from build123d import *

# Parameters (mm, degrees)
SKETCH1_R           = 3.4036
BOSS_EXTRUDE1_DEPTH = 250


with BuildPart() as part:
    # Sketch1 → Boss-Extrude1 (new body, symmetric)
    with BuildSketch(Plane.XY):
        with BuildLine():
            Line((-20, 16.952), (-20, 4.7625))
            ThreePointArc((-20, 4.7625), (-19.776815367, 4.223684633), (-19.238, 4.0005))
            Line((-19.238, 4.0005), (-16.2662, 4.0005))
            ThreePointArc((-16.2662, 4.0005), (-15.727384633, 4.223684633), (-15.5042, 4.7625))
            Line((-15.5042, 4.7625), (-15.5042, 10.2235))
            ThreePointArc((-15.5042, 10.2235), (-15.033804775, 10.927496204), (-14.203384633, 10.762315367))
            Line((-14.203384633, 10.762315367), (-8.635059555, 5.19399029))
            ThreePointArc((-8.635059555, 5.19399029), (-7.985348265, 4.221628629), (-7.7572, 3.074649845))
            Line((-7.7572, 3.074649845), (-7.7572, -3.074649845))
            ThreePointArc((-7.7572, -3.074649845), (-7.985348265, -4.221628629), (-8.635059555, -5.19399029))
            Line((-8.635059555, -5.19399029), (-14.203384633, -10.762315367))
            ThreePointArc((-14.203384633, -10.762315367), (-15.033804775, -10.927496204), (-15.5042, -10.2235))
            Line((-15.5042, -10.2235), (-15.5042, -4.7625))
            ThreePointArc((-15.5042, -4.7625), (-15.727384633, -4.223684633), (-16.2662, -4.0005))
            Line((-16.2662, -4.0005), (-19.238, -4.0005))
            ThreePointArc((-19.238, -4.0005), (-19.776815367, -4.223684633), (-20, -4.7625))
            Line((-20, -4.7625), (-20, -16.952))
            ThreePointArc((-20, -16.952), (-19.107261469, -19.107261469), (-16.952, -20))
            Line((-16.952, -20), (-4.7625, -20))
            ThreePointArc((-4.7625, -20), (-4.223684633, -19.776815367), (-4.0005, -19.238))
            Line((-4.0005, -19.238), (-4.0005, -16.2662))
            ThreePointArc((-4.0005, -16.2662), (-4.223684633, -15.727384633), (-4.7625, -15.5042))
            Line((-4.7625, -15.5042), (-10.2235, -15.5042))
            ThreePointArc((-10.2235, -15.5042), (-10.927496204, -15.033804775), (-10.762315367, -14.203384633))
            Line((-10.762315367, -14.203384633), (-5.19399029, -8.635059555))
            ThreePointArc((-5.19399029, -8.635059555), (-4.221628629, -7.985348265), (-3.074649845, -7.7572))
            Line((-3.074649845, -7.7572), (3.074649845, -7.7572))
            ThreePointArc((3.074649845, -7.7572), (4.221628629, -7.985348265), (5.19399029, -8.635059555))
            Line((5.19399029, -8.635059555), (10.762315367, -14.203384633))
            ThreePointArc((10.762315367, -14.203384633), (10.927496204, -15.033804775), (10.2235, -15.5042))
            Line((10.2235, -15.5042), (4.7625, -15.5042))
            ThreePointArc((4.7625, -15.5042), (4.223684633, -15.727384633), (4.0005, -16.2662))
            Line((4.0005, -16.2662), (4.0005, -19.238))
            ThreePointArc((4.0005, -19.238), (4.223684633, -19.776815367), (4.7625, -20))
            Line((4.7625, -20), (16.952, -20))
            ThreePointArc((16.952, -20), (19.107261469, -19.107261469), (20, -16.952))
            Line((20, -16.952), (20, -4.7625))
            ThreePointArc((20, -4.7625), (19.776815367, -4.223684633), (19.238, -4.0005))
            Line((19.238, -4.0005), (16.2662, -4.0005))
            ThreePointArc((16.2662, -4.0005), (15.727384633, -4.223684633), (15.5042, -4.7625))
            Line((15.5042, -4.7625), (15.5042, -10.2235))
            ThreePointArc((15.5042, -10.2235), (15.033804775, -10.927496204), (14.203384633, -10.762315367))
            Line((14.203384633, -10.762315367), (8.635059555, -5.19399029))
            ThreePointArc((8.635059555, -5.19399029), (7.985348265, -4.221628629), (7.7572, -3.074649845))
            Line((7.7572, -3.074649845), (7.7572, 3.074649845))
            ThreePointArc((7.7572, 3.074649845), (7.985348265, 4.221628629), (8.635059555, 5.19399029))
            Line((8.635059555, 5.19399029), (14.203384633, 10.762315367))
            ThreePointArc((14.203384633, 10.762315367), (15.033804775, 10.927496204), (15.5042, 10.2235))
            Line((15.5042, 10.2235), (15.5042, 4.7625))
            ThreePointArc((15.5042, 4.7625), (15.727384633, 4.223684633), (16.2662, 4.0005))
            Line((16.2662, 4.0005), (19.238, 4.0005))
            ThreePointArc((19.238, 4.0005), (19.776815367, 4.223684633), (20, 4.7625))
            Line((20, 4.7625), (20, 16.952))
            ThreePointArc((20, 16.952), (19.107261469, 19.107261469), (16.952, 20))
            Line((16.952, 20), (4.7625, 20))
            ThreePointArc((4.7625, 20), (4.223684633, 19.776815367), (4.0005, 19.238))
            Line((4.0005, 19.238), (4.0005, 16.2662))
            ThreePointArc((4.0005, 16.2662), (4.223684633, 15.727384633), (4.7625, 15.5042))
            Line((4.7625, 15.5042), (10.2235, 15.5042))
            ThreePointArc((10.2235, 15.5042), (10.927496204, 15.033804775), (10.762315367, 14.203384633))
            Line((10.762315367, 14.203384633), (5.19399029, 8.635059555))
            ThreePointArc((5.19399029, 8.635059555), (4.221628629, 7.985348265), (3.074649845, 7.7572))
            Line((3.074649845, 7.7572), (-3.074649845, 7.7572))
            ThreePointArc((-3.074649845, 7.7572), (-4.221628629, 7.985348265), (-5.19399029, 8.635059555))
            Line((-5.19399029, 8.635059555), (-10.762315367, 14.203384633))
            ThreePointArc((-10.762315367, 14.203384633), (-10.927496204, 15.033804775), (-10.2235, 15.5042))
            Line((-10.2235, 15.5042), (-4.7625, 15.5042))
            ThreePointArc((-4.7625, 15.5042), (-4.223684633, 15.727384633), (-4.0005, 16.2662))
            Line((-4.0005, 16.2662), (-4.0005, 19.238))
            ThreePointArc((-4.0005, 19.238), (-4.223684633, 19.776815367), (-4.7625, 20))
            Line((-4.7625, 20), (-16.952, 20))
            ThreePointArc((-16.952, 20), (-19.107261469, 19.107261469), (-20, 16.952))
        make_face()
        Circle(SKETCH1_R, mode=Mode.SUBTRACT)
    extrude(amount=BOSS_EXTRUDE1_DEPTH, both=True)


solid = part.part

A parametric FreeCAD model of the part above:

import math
import FreeCAD as App
import Part
import Sketcher

V = App.Vector
Q = App.Units.Quantity

doc = App.newDocument("Part")
body = doc.addObject("PartDesign::Body", "Body")

# Sketch on XY plane
sketch1 = body.newObject("Sketcher::SketchObject", "Sketch")
sketch1.AttachmentSupport = (doc.getObject("XY_Plane"), [""])
sketch1.MapMode = "FlatFace"
sketch1.addGeometry([
    Part.LineSegment(V(-20, 17, 0), V(-20, 4.8, 0)),  # 0
    Part.ArcOfCircle(Part.Circle(V(-19.2, 4.8, 0), V(0, 0, 1), 0.8), math.radians(-180), math.radians(-90)),  # 1
    Part.LineSegment(V(-19.2, 4, 0), V(-16.3, 4, 0)),  # 2
    Part.ArcOfCircle(Part.Circle(V(-16.3, 4.8, 0), V(0, 0, 1), 0.8), math.radians(-90), math.radians(0)),  # 3
    Part.LineSegment(V(-15.5, 4.8, 0), V(-15.5, 10.2, 0)),  # 4
    Part.ArcOfCircle(Part.Circle(V(-14.7, 10.2, 0), V(0, 0, 1), 0.8), math.radians(45), math.radians(180)),  # 5
    Part.LineSegment(V(-14.2, 10.8, 0), V(-8.6, 5.2, 0)),  # 6
    Part.ArcOfCircle(Part.Circle(V(-10.8, 3.1, 0), V(0, 0, 1), 3), math.radians(0), math.radians(45)),  # 7
    Part.LineSegment(V(-7.8, 3.1, 0), V(-7.8, -3.1, 0)),  # 8
    Part.ArcOfCircle(Part.Circle(V(-10.8, -3.1, 0), V(0, 0, 1), 3), math.radians(-45), math.radians(0)),  # 9
    Part.LineSegment(V(-8.6, -5.2, 0), V(-14.2, -10.8, 0)),  # 10
    Part.ArcOfCircle(Part.Circle(V(-14.7, -10.2, 0), V(0, 0, 1), 0.8), math.radians(180), math.radians(315)),  # 11
    Part.LineSegment(V(-15.5, -10.2, 0), V(-15.5, -4.8, 0)),  # 12
    Part.ArcOfCircle(Part.Circle(V(-16.3, -4.8, 0), V(0, 0, 1), 0.8), math.radians(0), math.radians(90)),  # 13
    Part.LineSegment(V(-16.3, -4, 0), V(-19.2, -4, 0)),  # 14
    Part.ArcOfCircle(Part.Circle(V(-19.2, -4.8, 0), V(0, 0, 1), 0.8), math.radians(90), math.radians(180)),  # 15
    Part.LineSegment(V(-20, -4.8, 0), V(-20, -17, 0)),  # 16
    Part.ArcOfCircle(Part.Circle(V(-17, -17, 0), V(0, 0, 1), 3), math.radians(180), math.radians(270)),  # 17
    Part.LineSegment(V(-17, -20, 0), V(-4.8, -20, 0)),  # 18
    Part.ArcOfCircle(Part.Circle(V(-4.8, -19.2, 0), V(0, 0, 1), 0.8), math.radians(-90), math.radians(0)),  # 19
    Part.LineSegment(V(-4, -19.2, 0), V(-4, -16.3, 0)),  # 20
    Part.ArcOfCircle(Part.Circle(V(-4.8, -16.3, 0), V(0, 0, 1), 0.8), math.radians(0), math.radians(90)),  # 21
    Part.LineSegment(V(-4.8, -15.5, 0), V(-10.2, -15.5, 0)),  # 22
    Part.ArcOfCircle(Part.Circle(V(-10.2, -14.7, 0), V(0, 0, 1), 0.8), math.radians(135), math.radians(270)),  # 23
    Part.LineSegment(V(-10.8, -14.2, 0), V(-5.2, -8.6, 0)),  # 24
    Part.ArcOfCircle(Part.Circle(V(-3.1, -10.8, 0), V(0, 0, 1), 3), math.radians(90), math.radians(135)),  # 25
    Part.LineSegment(V(-3.1, -7.8, 0), V(3.1, -7.8, 0)),  # 26
    Part.ArcOfCircle(Part.Circle(V(3.1, -10.8, 0), V(0, 0, 1), 3), math.radians(45), math.radians(90)),  # 27
    Part.LineSegment(V(5.2, -8.6, 0), V(10.8, -14.2, 0)),  # 28
    Part.ArcOfCircle(Part.Circle(V(10.2, -14.7, 0), V(0, 0, 1), 0.8), math.radians(-90), math.radians(45)),  # 29
    Part.LineSegment(V(10.2, -15.5, 0), V(4.8, -15.5, 0)),  # 30
    Part.ArcOfCircle(Part.Circle(V(4.8, -16.3, 0), V(0, 0, 1), 0.8), math.radians(90), math.radians(180)),  # 31
    Part.LineSegment(V(4, -16.3, 0), V(4, -19.2, 0)),  # 32
    Part.ArcOfCircle(Part.Circle(V(4.8, -19.2, 0), V(0, 0, 1), 0.8), math.radians(-180), math.radians(-90)),  # 33
    Part.LineSegment(V(4.8, -20, 0), V(17, -20, 0)),  # 34
    Part.ArcOfCircle(Part.Circle(V(17, -17, 0), V(0, 0, 1), 3), math.radians(-90), math.radians(0)),  # 35
    Part.LineSegment(V(20, -17, 0), V(20, -4.8, 0)),  # 36
    Part.ArcOfCircle(Part.Circle(V(19.2, -4.8, 0), V(0, 0, 1), 0.8), math.radians(0), math.radians(90)),  # 37
    Part.LineSegment(V(19.2, -4, 0), V(16.3, -4, 0)),  # 38
    Part.ArcOfCircle(Part.Circle(V(16.3, -4.8, 0), V(0, 0, 1), 0.8), math.radians(90), math.radians(180)),  # 39
    Part.LineSegment(V(15.5, -4.8, 0), V(15.5, -10.2, 0)),  # 40
    Part.ArcOfCircle(Part.Circle(V(14.7, -10.2, 0), V(0, 0, 1), 0.8), math.radians(-135), math.radians(0)),  # 41
    Part.LineSegment(V(14.2, -10.8, 0), V(8.6, -5.2, 0)),  # 42
    Part.ArcOfCircle(Part.Circle(V(10.8, -3.1, 0), V(0, 0, 1), 3), math.radians(180), math.radians(225)),  # 43
    Part.LineSegment(V(7.8, -3.1, 0), V(7.8, 3.1, 0)),  # 44
    Part.ArcOfCircle(Part.Circle(V(10.8, 3.1, 0), V(0, 0, 1), 3), math.radians(135), math.radians(180)),  # 45
    Part.LineSegment(V(8.6, 5.2, 0), V(14.2, 10.8, 0)),  # 46
    Part.ArcOfCircle(Part.Circle(V(14.7, 10.2, 0), V(0, 0, 1), 0.8), math.radians(0), math.radians(135)),  # 47
    Part.LineSegment(V(15.5, 10.2, 0), V(15.5, 4.8, 0)),  # 48
    Part.ArcOfCircle(Part.Circle(V(16.3, 4.8, 0), V(0, 0, 1), 0.8), math.radians(-180), math.radians(-90)),  # 49
    Part.LineSegment(V(16.3, 4, 0), V(19.2, 4, 0)),  # 50
    Part.ArcOfCircle(Part.Circle(V(19.2, 4.8, 0), V(0, 0, 1), 0.8), math.radians(-90), math.radians(0)),  # 51
    Part.LineSegment(V(20, 4.8, 0), V(20, 17, 0)),  # 52
    Part.ArcOfCircle(Part.Circle(V(17, 17, 0), V(0, 0, 1), 3), math.radians(0), math.radians(90)),  # 53
    Part.LineSegment(V(17, 20, 0), V(4.8, 20, 0)),  # 54
    Part.ArcOfCircle(Part.Circle(V(4.8, 19.2, 0), V(0, 0, 1), 0.8), math.radians(90), math.radians(180)),  # 55
    Part.LineSegment(V(4, 19.2, 0), V(4, 16.3, 0)),  # 56
    Part.ArcOfCircle(Part.Circle(V(4.8, 16.3, 0), V(0, 0, 1), 0.8), math.radians(-180), math.radians(-90)),  # 57
    Part.LineSegment(V(4.8, 15.5, 0), V(10.2, 15.5, 0)),  # 58
    Part.ArcOfCircle(Part.Circle(V(10.2, 14.7, 0), V(0, 0, 1), 0.8), math.radians(-45), math.radians(90)),  # 59
    Part.LineSegment(V(10.8, 14.2, 0), V(5.2, 8.6, 0)),  # 60
    Part.ArcOfCircle(Part.Circle(V(3.1, 10.8, 0), V(0, 0, 1), 3), math.radians(-90), math.radians(-45)),  # 61
    Part.LineSegment(V(3.1, 7.8, 0), V(-3.1, 7.8, 0)),  # 62
    Part.ArcOfCircle(Part.Circle(V(-3.1, 10.8, 0), V(0, 0, 1), 3), math.radians(-135), math.radians(-90)),  # 63
    Part.LineSegment(V(-5.2, 8.6, 0), V(-10.8, 14.2, 0)),  # 64
    Part.ArcOfCircle(Part.Circle(V(-10.2, 14.7, 0), V(0, 0, 1), 0.8), math.radians(90), math.radians(225)),  # 65
    Part.LineSegment(V(-10.2, 15.5, 0), V(-4.8, 15.5, 0)),  # 66
    Part.ArcOfCircle(Part.Circle(V(-4.8, 16.3, 0), V(0, 0, 1), 0.8), math.radians(-90), math.radians(0)),  # 67
    Part.LineSegment(V(-4, 16.3, 0), V(-4, 19.2, 0)),  # 68
    Part.ArcOfCircle(Part.Circle(V(-4.8, 19.2, 0), V(0, 0, 1), 0.8), math.radians(0), math.radians(90)),  # 69
    Part.LineSegment(V(-4.8, 20, 0), V(-17, 20, 0)),  # 70
    Part.ArcOfCircle(Part.Circle(V(-17, 17, 0), V(0, 0, 1), 3), math.radians(90), math.radians(180)),  # 71
    Part.Circle(V(0, 0, 0), V(0, 0, 1), 3.4),  # 72
], False)
sketch1.addConstraint([
    Sketcher.Constraint("Tangent", 0, 2, 1, 1),
    Sketcher.Constraint("Tangent", 1, 2, 2, 1),
    Sketcher.Constraint("Tangent", 2, 2, 3, 1),
    Sketcher.Constraint("Tangent", 3, 2, 4, 1),
    Sketcher.Constraint("Tangent", 4, 2, 5, 2),
    Sketcher.Constraint("Tangent", 5, 1, 6, 1),
    Sketcher.Constraint("Tangent", 6, 2, 7, 2),
    Sketcher.Constraint("Tangent", 7, 1, 8, 1),
    Sketcher.Constraint("Tangent", 8, 2, 9, 2),
    Sketcher.Constraint("Tangent", 9, 1, 10, 1),
    Sketcher.Constraint("Tangent", 10, 2, 11, 2),
    Sketcher.Constraint("Tangent", 11, 1, 12, 1),
    Sketcher.Constraint("Tangent", 12, 2, 13, 1),
    Sketcher.Constraint("Tangent", 13, 2, 14, 1),
    Sketcher.Constraint("Tangent", 14, 2, 15, 1),
    Sketcher.Constraint("Tangent", 15, 2, 16, 1),
    Sketcher.Constraint("Tangent", 16, 2, 17, 1),
    Sketcher.Constraint("Tangent", 17, 2, 18, 1),
    Sketcher.Constraint("Tangent", 18, 2, 19, 1),
    Sketcher.Constraint("Tangent", 19, 2, 20, 1),
    Sketcher.Constraint("Tangent", 20, 2, 21, 1),
    Sketcher.Constraint("Tangent", 21, 2, 22, 1),
    Sketcher.Constraint("Tangent", 22, 2, 23, 2),
    Sketcher.Constraint("Tangent", 23, 1, 24, 1),
    Sketcher.Constraint("Tangent", 24, 2, 25, 2),
    Sketcher.Constraint("Tangent", 25, 1, 26, 1),
    Sketcher.Constraint("Tangent", 26, 2, 27, 2),
    Sketcher.Constraint("Tangent", 27, 1, 28, 1),
    Sketcher.Constraint("Tangent", 28, 2, 29, 2),
    Sketcher.Constraint("Tangent", 29, 1, 30, 1),
    Sketcher.Constraint("Tangent", 30, 2, 31, 1),
    Sketcher.Constraint("Tangent", 31, 2, 32, 1),
    Sketcher.Constraint("Tangent", 32, 2, 33, 1),
    Sketcher.Constraint("Tangent", 33, 2, 34, 1),
    Sketcher.Constraint("Tangent", 34, 2, 35, 1),
    Sketcher.Constraint("Tangent", 35, 2, 36, 1),
    Sketcher.Constraint("Tangent", 36, 2, 37, 1),
    Sketcher.Constraint("Tangent", 37, 2, 38, 1),
    Sketcher.Constraint("Tangent", 38, 2, 39, 1),
    Sketcher.Constraint("Tangent", 39, 2, 40, 1),
    Sketcher.Constraint("Tangent", 40, 2, 41, 2),
    Sketcher.Constraint("Tangent", 41, 1, 42, 1),
    Sketcher.Constraint("Tangent", 42, 2, 43, 2),
    Sketcher.Constraint("Tangent", 43, 1, 44, 1),
    Sketcher.Constraint("Tangent", 44, 2, 45, 2),
    Sketcher.Constraint("Tangent", 45, 1, 46, 1),
    Sketcher.Constraint("Tangent", 46, 2, 47, 2),
    Sketcher.Constraint("Tangent", 47, 1, 48, 1),
    Sketcher.Constraint("Tangent", 48, 2, 49, 1),
    Sketcher.Constraint("Tangent", 49, 2, 50, 1),
    Sketcher.Constraint("Tangent", 50, 2, 51, 1),
    Sketcher.Constraint("Tangent", 51, 2, 52, 1),
    Sketcher.Constraint("Tangent", 52, 2, 53, 1),
    Sketcher.Constraint("Tangent", 53, 2, 54, 1),
    Sketcher.Constraint("Tangent", 54, 2, 55, 1),
    Sketcher.Constraint("Tangent", 55, 2, 56, 1),
    Sketcher.Constraint("Tangent", 56, 2, 57, 1),
    Sketcher.Constraint("Tangent", 57, 2, 58, 1),
    Sketcher.Constraint("Tangent", 58, 2, 59, 2),
    Sketcher.Constraint("Tangent", 59, 1, 60, 1),
    Sketcher.Constraint("Tangent", 60, 2, 61, 2),
    Sketcher.Constraint("Tangent", 61, 1, 62, 1),
    Sketcher.Constraint("Tangent", 62, 2, 63, 2),
    Sketcher.Constraint("Tangent", 63, 1, 64, 1),
    Sketcher.Constraint("Tangent", 64, 2, 65, 2),
    Sketcher.Constraint("Tangent", 65, 1, 66, 1),
    Sketcher.Constraint("Tangent", 66, 2, 67, 1),
    Sketcher.Constraint("Tangent", 67, 2, 68, 1),
    Sketcher.Constraint("Tangent", 68, 2, 69, 1),
    Sketcher.Constraint("Tangent", 69, 2, 70, 1),
    Sketcher.Constraint("Tangent", 70, 2, 71, 1),
    Sketcher.Constraint("Tangent", 71, 2, 0, 1),
    Sketcher.Constraint("Vertical", 0),
    Sketcher.Constraint("Horizontal", 2),
    Sketcher.Constraint("Vertical", 4),
    Sketcher.Constraint("Vertical", 8),
    Sketcher.Constraint("Vertical", 12),
    Sketcher.Constraint("Horizontal", 14),
    Sketcher.Constraint("Vertical", 16),
    Sketcher.Constraint("Horizontal", 18),
    Sketcher.Constraint("Vertical", 20),
    Sketcher.Constraint("Horizontal", 22),
    Sketcher.Constraint("Horizontal", 26),
    Sketcher.Constraint("Horizontal", 30),
    Sketcher.Constraint("Vertical", 32),
    Sketcher.Constraint("Horizontal", 34),
    Sketcher.Constraint("Vertical", 36),
    Sketcher.Constraint("Horizontal", 38),
    Sketcher.Constraint("Vertical", 40),
    Sketcher.Constraint("Vertical", 44),
    Sketcher.Constraint("Vertical", 48),
    Sketcher.Constraint("Horizontal", 50),
    Sketcher.Constraint("Vertical", 52),
    Sketcher.Constraint("Horizontal", 54),
    Sketcher.Constraint("Vertical", 56),
    Sketcher.Constraint("Horizontal", 58),
    Sketcher.Constraint("Horizontal", 62),
    Sketcher.Constraint("Horizontal", 66),
    Sketcher.Constraint("Vertical", 68),
    Sketcher.Constraint("Horizontal", 70),
    Sketcher.Constraint("Coincident", 72, 3, -1, 1),
    Sketcher.Constraint("Equal", 1, 3),
    Sketcher.Constraint("Equal", 3, 5),
    Sketcher.Constraint("Equal", 7, 9),
    Sketcher.Constraint("Equal", 5, 11),
    Sketcher.Constraint("Equal", 11, 13),
    Sketcher.Constraint("Equal", 13, 15),
    Sketcher.Constraint("Equal", 15, 19),
    Sketcher.Constraint("Equal", 19, 21),
    Sketcher.Constraint("Equal", 21, 23),
    Sketcher.Constraint("Equal", 9, 25),
    Sketcher.Constraint("Equal", 25, 27),
    Sketcher.Constraint("Equal", 23, 29),
    Sketcher.Constraint("Equal", 29, 31),
    Sketcher.Constraint("Equal", 31, 33),
    Sketcher.Constraint("Equal", 17, 35),
    Sketcher.Constraint("Equal", 33, 37),
    Sketcher.Constraint("Equal", 37, 39),
    Sketcher.Constraint("Equal", 39, 41),
    Sketcher.Constraint("Equal", 27, 43),
    Sketcher.Constraint("Equal", 43, 45),
    Sketcher.Constraint("Equal", 41, 47),
    Sketcher.Constraint("Equal", 47, 49),
    Sketcher.Constraint("Equal", 49, 51),
    Sketcher.Constraint("Equal", 35, 53),
    Sketcher.Constraint("Equal", 51, 55),
    Sketcher.Constraint("Equal", 55, 57),
    Sketcher.Constraint("Equal", 57, 59),
    Sketcher.Constraint("Equal", 45, 61),
    Sketcher.Constraint("Equal", 61, 63),
    Sketcher.Constraint("Equal", 59, 65),
    Sketcher.Constraint("Equal", 65, 67),
    Sketcher.Constraint("Equal", 67, 69),
    Sketcher.Constraint("Equal", 53, 71),
    Sketcher.Constraint("Symmetric", 1, 3, 37, 3, -1, 1),
    Sketcher.Constraint("Symmetric", 5, 3, 41, 3, -1, 1),
    Sketcher.Constraint("Symmetric", 7, 3, 43, 3, -1, 1),
    Sketcher.Constraint("Symmetric", 11, 3, 47, 3, -1, 1),
    Sketcher.Constraint("Symmetric", 15, 3, 51, 3, -1, 1),
    Sketcher.Constraint("Symmetric", 19, 3, 55, 3, -1, 1),
    Sketcher.Constraint("Symmetric", 23, 3, 59, 3, -1, 1),
    Sketcher.Constraint("Symmetric", 25, 3, 61, 3, -1, 1),
    Sketcher.Constraint("Symmetric", 29, 3, 65, 3, -1, 1),
    Sketcher.Constraint("Symmetric", 33, 3, 69, 3, -1, 1),
    Sketcher.Constraint("Symmetric", 23, 3, 29, 3, -2),
    Sketcher.Constraint("Symmetric", 19, 3, 33, 3, -2),
    Sketcher.Constraint("Symmetric", 15, 3, 37, 3, -2),
    Sketcher.Constraint("Symmetric", 11, 3, 41, 3, -2),
    Sketcher.Constraint("Perpendicular", 6, 10),
    Sketcher.Constraint("Parallel", 10, 24),
    Sketcher.Constraint("Perpendicular", 24, 28),
    Sketcher.Constraint("Perpendicular", 42, 46),
    Sketcher.Constraint("Perpendicular", 60, 64),
    Sketcher.Constraint("Horizontal", 9, 3, 43, 3),
    Sketcher.Constraint("Equal", 70, 0),
    Sketcher.Constraint("Equal", 66, 4),
    Sketcher.Constraint("Equal", 62, 8),
    Sketcher.Constraint("Equal", 50, 20),
    Sketcher.Constraint("Equal", 10, 24),
    Sketcher.Constraint("Radius", 1, Q("0.03 in")),
    Sketcher.Constraint("Radius", 17, Q("0.12 in")),
    Sketcher.Constraint("Diameter", 72, Q("0.268 in")),
    Sketcher.Constraint("Radius", 7, Q("0.118 in")),
    Sketcher.Constraint("DistanceX", 2, 1, 2, 2, Q("0.117 in")),
    Sketcher.Constraint("DistanceX", 22, 2, 22, 1, Q("0.215 in")),
    Sketcher.Constraint("DistanceY", -1, 1, 1, 3, Q("0.1875 in")),
    Sketcher.Constraint("DistanceX", 18, 1, 18, 2, 12.1895),
    Sketcher.Constraint("DistanceX", 26, 1, 26, 2, 6.1493),
])
pad1 = body.newObject("PartDesign::Pad", "Pad")
pad1.Profile = sketch1
pad1.Length = 500
pad1.Midplane = True

doc.recompute()
